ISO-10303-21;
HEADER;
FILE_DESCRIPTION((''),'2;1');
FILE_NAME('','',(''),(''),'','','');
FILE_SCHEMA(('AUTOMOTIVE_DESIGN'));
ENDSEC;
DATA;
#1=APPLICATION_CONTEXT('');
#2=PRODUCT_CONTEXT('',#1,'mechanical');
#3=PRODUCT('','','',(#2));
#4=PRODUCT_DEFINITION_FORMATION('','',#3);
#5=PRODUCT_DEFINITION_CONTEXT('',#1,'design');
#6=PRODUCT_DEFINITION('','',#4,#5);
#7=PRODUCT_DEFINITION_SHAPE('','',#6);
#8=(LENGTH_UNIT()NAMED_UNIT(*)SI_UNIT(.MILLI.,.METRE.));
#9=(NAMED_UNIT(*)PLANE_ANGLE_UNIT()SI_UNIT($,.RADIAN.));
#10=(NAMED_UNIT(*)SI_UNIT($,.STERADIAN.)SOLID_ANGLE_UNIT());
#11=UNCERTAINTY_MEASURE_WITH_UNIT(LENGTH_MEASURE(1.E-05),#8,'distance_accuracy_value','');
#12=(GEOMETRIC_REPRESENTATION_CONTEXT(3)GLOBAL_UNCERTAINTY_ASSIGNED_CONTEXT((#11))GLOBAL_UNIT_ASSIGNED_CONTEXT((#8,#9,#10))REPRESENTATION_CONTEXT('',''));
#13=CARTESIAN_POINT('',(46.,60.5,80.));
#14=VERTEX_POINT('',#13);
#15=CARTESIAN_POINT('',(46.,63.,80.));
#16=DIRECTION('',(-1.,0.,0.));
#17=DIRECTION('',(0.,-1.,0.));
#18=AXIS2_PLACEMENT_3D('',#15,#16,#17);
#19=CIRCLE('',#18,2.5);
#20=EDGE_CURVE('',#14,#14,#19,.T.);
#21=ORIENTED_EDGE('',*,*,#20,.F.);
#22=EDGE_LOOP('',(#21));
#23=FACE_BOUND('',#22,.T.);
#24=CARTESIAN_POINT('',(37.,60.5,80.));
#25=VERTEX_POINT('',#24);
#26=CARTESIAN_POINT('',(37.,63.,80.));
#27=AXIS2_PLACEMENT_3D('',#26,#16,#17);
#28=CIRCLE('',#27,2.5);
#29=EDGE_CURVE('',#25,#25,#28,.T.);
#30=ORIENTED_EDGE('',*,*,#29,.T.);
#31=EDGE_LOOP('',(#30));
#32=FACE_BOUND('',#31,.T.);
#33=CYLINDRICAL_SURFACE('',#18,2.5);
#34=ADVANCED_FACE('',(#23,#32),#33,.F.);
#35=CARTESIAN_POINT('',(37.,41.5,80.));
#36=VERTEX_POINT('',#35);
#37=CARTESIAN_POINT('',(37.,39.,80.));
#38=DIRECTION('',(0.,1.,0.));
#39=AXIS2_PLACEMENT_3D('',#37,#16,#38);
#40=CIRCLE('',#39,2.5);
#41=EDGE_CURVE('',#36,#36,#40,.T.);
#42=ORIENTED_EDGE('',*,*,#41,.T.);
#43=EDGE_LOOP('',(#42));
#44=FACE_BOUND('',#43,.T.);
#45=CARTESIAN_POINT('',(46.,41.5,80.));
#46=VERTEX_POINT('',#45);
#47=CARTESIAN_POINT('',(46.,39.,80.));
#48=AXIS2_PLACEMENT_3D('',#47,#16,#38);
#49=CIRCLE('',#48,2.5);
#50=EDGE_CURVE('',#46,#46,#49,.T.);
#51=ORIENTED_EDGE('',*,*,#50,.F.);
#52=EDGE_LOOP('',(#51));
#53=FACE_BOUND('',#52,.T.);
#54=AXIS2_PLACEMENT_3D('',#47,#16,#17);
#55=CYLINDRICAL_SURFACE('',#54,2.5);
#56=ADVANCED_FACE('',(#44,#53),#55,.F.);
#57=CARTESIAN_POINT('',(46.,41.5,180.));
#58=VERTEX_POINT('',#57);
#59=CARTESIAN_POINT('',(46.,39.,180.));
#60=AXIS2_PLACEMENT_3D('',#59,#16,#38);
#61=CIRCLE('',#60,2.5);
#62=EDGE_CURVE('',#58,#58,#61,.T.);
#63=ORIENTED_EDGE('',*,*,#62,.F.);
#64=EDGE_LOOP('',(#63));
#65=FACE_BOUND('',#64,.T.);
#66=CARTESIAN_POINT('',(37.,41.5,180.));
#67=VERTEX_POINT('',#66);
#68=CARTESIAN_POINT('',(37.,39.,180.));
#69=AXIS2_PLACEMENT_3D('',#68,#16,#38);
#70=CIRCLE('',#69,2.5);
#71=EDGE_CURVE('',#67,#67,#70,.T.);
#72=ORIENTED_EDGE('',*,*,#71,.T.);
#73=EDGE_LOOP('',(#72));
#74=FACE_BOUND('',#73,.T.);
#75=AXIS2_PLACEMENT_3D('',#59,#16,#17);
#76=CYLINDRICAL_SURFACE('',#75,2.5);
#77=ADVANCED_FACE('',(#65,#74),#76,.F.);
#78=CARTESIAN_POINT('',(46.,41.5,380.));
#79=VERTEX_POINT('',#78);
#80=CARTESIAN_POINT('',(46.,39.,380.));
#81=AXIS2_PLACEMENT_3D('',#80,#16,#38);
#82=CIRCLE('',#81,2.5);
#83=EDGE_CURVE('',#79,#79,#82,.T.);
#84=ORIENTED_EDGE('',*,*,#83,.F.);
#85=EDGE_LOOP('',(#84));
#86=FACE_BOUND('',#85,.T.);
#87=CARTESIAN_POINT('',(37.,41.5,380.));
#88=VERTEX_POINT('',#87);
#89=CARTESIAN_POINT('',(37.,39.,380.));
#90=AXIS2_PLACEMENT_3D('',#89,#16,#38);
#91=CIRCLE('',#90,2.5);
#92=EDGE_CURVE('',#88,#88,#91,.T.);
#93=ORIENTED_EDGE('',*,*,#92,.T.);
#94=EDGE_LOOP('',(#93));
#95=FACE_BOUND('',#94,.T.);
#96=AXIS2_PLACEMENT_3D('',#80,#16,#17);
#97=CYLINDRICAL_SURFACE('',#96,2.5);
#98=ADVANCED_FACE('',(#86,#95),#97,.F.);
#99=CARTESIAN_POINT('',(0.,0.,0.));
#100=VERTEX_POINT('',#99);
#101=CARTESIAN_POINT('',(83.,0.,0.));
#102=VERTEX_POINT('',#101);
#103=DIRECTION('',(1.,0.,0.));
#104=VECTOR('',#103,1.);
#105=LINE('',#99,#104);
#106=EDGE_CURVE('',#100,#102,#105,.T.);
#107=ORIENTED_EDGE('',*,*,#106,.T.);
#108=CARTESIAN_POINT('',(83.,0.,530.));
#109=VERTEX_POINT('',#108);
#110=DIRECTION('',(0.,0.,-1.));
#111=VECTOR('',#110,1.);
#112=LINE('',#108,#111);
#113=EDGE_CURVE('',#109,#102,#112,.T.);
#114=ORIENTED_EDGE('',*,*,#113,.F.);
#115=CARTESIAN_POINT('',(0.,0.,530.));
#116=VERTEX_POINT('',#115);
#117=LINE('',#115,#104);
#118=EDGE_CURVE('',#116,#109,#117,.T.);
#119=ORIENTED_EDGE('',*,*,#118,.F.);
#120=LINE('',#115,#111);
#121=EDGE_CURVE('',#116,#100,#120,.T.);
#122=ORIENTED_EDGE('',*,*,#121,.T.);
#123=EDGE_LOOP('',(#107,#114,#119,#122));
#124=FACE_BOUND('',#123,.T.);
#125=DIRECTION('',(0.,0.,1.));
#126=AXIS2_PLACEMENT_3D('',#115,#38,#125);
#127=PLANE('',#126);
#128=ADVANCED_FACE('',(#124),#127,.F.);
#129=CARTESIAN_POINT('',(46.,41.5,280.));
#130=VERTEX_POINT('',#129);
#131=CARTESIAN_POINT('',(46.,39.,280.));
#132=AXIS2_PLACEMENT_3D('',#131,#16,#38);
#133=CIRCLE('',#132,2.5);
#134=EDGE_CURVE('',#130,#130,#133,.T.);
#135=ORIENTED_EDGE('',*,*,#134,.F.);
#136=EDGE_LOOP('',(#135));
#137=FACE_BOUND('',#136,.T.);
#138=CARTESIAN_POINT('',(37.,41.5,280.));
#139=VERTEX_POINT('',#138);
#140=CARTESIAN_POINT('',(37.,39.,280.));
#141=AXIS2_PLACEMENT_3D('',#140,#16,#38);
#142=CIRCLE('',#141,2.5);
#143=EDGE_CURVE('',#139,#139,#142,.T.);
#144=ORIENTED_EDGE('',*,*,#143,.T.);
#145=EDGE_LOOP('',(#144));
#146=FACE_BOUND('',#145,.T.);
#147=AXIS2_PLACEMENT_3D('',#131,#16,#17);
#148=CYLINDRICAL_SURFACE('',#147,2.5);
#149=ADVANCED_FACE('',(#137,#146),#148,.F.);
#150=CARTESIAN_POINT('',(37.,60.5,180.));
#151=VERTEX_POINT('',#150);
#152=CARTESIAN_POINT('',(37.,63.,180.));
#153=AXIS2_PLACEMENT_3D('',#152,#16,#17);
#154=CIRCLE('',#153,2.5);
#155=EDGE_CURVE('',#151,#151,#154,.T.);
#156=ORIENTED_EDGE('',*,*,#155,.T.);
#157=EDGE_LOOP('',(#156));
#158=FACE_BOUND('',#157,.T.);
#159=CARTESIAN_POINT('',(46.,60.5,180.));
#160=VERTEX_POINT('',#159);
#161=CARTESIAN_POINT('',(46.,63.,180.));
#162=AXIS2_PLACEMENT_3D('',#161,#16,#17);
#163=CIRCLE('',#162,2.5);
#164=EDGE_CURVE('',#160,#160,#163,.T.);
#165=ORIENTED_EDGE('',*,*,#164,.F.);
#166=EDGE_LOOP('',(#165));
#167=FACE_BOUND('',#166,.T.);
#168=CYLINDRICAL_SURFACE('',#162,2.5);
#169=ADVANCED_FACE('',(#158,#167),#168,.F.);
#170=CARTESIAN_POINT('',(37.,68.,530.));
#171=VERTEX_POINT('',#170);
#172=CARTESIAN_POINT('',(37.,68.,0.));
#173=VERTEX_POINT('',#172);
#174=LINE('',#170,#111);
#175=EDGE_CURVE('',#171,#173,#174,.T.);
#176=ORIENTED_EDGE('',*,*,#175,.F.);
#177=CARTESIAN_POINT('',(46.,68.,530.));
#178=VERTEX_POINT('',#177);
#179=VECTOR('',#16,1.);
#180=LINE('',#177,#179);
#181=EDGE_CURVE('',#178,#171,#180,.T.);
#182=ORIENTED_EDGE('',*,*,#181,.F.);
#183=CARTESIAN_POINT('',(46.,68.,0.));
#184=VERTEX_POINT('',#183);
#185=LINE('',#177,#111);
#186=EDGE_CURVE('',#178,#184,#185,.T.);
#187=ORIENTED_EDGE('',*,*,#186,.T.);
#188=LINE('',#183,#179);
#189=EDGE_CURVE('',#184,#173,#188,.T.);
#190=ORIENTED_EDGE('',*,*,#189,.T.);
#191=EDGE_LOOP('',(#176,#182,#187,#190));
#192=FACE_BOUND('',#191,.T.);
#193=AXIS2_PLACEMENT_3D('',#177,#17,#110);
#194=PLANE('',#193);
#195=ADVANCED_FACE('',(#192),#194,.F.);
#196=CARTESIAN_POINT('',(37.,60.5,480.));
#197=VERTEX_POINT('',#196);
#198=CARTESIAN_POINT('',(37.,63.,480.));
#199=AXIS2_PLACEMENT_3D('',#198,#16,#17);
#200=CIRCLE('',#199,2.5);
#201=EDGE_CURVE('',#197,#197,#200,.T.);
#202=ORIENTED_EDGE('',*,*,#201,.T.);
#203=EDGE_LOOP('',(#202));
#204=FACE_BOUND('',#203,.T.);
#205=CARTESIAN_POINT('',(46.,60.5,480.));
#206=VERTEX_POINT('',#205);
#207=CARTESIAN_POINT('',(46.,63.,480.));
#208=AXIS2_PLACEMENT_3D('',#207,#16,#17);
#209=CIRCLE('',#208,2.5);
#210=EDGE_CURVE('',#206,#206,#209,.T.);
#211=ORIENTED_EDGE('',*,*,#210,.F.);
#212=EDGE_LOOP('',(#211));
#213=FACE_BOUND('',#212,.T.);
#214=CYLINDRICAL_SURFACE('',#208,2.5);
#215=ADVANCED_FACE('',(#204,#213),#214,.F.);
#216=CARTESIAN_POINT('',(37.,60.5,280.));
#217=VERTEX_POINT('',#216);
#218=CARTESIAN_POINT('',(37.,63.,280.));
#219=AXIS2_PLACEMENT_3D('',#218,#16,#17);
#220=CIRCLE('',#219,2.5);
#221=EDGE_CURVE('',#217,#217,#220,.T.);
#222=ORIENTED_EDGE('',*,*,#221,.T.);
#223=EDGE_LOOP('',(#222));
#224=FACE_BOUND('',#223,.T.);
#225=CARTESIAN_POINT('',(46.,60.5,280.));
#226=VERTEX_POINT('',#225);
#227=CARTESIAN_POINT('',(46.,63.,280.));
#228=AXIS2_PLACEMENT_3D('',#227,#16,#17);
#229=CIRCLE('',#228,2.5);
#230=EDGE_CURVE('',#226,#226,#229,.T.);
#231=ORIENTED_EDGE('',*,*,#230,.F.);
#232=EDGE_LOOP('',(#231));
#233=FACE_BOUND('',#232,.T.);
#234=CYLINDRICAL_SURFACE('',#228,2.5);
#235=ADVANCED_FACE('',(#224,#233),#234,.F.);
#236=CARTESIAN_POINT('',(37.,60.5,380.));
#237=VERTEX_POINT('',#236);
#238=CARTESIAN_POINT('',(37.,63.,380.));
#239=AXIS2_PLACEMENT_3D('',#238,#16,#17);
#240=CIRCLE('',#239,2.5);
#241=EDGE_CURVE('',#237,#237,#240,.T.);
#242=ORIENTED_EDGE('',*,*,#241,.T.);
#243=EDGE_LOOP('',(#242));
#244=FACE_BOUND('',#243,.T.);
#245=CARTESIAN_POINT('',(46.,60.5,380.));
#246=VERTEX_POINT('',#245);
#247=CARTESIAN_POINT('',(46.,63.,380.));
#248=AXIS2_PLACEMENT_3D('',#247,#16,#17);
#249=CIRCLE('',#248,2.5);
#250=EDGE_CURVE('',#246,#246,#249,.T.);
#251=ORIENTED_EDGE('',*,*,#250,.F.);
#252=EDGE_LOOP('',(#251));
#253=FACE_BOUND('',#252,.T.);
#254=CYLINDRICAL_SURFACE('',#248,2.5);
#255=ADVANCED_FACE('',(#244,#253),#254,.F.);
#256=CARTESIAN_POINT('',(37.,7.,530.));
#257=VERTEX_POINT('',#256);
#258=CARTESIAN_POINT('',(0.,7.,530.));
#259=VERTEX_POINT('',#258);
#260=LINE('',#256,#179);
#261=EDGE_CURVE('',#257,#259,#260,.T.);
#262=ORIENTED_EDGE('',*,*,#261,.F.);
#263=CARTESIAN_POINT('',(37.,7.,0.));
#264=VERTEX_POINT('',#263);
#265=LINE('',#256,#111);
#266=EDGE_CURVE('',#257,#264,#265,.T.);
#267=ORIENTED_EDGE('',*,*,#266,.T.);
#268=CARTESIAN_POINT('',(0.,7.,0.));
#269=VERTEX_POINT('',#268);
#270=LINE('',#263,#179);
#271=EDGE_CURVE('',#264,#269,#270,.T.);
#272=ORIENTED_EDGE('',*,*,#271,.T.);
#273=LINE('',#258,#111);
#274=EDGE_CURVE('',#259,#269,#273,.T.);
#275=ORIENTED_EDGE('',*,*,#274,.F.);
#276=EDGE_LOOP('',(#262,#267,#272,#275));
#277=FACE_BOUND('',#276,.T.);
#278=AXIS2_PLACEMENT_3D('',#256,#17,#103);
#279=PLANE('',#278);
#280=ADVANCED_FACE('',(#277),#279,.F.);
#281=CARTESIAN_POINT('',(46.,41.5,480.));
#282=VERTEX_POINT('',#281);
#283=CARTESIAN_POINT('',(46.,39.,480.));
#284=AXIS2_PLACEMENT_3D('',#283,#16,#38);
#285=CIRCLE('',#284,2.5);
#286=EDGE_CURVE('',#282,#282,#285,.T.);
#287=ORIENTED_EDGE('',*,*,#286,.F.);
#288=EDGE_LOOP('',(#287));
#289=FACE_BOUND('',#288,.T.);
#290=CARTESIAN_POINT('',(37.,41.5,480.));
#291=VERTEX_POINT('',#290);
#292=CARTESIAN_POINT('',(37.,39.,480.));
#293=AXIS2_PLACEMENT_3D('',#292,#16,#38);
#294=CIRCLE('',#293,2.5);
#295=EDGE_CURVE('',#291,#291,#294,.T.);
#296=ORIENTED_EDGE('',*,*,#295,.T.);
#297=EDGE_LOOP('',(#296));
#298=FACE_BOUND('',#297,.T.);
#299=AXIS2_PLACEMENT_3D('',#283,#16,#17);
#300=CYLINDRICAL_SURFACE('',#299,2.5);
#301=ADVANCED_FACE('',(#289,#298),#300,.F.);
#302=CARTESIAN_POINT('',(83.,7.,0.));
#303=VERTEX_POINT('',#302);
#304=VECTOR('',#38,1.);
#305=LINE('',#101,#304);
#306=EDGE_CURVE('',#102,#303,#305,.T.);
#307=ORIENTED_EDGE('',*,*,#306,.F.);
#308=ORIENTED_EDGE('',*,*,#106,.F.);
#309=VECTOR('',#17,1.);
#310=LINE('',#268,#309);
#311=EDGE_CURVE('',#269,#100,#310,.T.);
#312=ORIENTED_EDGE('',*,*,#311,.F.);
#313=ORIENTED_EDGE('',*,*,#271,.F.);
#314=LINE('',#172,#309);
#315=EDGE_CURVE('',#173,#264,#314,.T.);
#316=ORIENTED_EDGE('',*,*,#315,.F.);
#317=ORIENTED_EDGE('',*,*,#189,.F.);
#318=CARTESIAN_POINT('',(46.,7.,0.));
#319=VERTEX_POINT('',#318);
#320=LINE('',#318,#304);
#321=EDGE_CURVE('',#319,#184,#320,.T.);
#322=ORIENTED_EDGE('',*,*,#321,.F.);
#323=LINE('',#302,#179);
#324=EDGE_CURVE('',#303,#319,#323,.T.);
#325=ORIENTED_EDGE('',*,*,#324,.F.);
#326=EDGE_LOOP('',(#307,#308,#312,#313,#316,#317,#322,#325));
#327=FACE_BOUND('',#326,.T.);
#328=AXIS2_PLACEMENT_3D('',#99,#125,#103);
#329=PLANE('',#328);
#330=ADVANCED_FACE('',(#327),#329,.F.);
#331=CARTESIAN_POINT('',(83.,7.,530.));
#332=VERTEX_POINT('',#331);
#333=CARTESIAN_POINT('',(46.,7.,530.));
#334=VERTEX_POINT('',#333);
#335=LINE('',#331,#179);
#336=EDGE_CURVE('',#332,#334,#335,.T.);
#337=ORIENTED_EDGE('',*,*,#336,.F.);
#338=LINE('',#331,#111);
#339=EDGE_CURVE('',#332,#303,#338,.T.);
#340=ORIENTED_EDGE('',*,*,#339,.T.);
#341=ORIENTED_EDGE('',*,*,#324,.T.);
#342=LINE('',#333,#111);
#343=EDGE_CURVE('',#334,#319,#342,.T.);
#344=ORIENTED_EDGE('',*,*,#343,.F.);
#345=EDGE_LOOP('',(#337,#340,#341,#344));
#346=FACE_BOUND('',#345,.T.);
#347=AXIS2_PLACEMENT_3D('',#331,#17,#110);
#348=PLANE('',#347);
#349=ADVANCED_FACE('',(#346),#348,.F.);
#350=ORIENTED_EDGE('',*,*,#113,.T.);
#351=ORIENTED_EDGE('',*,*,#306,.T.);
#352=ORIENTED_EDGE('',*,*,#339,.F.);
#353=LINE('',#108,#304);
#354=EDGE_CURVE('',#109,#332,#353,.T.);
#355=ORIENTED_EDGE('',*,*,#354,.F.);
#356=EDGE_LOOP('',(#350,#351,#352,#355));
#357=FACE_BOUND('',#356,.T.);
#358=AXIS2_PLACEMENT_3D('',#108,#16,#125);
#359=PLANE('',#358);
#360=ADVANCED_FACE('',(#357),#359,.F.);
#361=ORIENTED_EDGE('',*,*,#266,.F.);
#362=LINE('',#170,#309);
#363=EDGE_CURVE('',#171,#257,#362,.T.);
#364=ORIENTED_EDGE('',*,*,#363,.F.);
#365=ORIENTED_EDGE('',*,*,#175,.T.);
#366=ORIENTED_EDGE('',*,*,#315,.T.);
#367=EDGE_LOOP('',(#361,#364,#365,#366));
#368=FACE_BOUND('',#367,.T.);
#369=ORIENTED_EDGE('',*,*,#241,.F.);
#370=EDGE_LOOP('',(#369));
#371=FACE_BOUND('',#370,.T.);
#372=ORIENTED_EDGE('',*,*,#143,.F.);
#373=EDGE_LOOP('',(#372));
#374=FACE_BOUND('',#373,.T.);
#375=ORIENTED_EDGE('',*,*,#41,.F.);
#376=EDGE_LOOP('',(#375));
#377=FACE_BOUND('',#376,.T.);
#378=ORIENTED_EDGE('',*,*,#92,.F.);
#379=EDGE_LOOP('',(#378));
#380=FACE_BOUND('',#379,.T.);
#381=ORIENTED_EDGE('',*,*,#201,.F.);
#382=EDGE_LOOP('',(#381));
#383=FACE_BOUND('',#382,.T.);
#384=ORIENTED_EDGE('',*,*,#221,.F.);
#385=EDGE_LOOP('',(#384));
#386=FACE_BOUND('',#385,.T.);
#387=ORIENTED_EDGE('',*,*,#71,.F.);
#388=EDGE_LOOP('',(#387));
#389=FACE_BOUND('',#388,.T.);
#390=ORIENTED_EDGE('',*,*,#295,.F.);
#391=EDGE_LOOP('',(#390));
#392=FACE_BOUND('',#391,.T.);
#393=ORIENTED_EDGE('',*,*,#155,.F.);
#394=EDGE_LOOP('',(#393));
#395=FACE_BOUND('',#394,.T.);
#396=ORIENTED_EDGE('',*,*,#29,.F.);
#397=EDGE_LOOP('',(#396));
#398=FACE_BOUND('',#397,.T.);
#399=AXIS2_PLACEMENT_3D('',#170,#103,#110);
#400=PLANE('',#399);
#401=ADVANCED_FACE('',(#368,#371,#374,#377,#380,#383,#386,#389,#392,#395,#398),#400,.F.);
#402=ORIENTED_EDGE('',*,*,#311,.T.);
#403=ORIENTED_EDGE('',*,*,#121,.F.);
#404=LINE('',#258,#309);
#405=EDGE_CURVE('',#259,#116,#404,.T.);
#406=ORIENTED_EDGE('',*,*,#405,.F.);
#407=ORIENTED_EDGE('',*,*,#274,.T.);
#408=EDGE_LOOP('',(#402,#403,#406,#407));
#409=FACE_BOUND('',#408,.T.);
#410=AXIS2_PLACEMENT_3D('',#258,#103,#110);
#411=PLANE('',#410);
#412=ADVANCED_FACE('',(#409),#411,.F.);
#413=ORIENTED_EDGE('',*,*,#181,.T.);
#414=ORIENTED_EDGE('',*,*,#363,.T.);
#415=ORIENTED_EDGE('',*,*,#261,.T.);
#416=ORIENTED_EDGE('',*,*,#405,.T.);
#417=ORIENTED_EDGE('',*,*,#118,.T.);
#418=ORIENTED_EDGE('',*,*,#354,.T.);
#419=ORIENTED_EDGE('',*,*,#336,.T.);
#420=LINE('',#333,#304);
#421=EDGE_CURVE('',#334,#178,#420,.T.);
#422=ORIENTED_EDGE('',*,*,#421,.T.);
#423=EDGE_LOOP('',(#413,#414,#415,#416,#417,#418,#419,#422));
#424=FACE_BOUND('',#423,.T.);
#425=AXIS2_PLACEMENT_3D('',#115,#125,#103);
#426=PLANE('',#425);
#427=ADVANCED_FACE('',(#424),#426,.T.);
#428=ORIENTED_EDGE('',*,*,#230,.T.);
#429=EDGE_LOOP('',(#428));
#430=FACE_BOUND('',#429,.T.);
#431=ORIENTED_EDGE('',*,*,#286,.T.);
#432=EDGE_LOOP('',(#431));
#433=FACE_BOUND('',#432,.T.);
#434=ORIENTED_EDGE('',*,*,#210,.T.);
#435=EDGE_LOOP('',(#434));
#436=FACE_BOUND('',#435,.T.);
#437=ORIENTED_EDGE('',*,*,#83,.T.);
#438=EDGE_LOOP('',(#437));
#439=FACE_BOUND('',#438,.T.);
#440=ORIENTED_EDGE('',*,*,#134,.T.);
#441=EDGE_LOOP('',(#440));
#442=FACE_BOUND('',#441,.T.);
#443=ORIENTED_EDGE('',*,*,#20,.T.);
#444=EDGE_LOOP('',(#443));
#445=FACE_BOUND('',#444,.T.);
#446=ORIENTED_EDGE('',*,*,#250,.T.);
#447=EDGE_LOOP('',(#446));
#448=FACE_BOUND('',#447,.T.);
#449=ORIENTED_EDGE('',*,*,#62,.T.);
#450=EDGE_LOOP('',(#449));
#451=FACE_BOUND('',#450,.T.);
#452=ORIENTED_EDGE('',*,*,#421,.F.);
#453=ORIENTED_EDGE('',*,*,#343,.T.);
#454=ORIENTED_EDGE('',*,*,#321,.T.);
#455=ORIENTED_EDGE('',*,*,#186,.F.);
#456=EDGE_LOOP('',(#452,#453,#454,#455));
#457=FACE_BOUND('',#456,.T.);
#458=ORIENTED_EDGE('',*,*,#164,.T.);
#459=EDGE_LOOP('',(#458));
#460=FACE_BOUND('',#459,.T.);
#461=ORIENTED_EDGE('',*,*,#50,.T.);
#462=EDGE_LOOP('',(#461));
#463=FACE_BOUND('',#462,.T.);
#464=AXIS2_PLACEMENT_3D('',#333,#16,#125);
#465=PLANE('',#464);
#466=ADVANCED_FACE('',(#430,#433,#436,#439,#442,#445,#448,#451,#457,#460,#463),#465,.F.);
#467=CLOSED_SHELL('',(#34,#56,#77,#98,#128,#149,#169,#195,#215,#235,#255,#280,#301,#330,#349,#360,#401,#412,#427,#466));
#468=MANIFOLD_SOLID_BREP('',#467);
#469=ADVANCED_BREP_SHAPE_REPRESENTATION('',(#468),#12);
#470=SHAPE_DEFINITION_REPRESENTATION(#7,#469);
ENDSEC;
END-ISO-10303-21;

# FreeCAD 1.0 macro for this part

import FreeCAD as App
import Part
import Sketcher
Q = App.Units.Quantity

doc = App.newDocument("Part")
body = doc.addObject("PartDesign::Body", "Body")

sketch1 = body.newObject("Sketcher::SketchObject", "Sketch")
sketch1.AttachmentSupport = (doc.getObject("XY_Plane"), [""])
sketch1.MapMode = "FlatFace"
sketch1.addGeometry([
    Part.LineSegment(App.Vector(0, 0, 0), App.Vector(83, 0, 0)),
    Part.LineSegment(App.Vector(83, 0, 0), App.Vector(83, 7, 0)),
    Part.LineSegment(App.Vector(83, 7, 0), App.Vector(46, 7, 0)),
    Part.LineSegment(App.Vector(46, 7, 0), App.Vector(46, 68, 0)),
    Part.LineSegment(App.Vector(46, 68, 0), App.Vector(37, 68, 0)),
    Part.LineSegment(App.Vector(37, 68, 0), App.Vector(37, 7, 0)),
    Part.LineSegment(App.Vector(37, 7, 0), App.Vector(0, 7, 0)),
    Part.LineSegment(App.Vector(0, 7, 0), App.Vector(0, 0, 0)),
], False)
sketch1.addConstraint([
    Sketcher.Constraint("Coincident", 0, 2, 1, 1),
    Sketcher.Constraint("Coincident", 1, 2, 2, 1),
    Sketcher.Constraint("Coincident", 2, 2, 3, 1),
    Sketcher.Constraint("Coincident", 3, 2, 4, 1),
    Sketcher.Constraint("Coincident", 4, 2, 5, 1),
    Sketcher.Constraint("Coincident", 5, 2, 6, 1),
    Sketcher.Constraint("Coincident", 6, 2, 7, 1),
    Sketcher.Constraint("Coincident", 7, 2, 0, 1),
    Sketcher.Constraint("Horizontal", 0),
    Sketcher.Constraint("Vertical", 1),
    Sketcher.Constraint("Horizontal", 2),
    Sketcher.Constraint("Vertical", 3),
    Sketcher.Constraint("Horizontal", 4),
    Sketcher.Constraint("Vertical", 5),
    Sketcher.Constraint("Horizontal", 6),
    Sketcher.Constraint("Vertical", 7),
    Sketcher.Constraint("Coincident", 7, 2, -1, 1),
    Sketcher.Constraint("Horizontal", 2, 2, 5, 2),
    Sketcher.Constraint("Equal", 2, 6),
    Sketcher.Constraint("DistanceX", 0, 1, 0, 2, Q("83 mm")),
    Sketcher.Constraint("DistanceX", 2, 2, 2, 1, Q("37 mm")),
    Sketcher.Constraint("DistanceY", 1, 1, 1, 2, Q("7 mm")),
    Sketcher.Constraint("DistanceY", 3, 1, 3, 2, Q("61 mm")),
])
pad1 = body.newObject("PartDesign::Pad", "Pad")
pad1.Profile = sketch1
pad1.Length = 530

sketch2 = body.newObject("Sketcher::SketchObject", "Sketch001")
sketch2.AttachmentSupport = (doc.getObject("YZ_Plane"), [""])
sketch2.MapMode = "FlatFace"
sketch2.AttachmentOffset = App.Placement(App.Vector(0, 0, 37), App.Rotation())
sketch2.addGeometry([
    Part.Circle(App.Vector(63, 80, 0), App.Vector(0, 0, 1), 2.5),
    Part.Circle(App.Vector(39, 80, 0), App.Vector(0, 0, 1), 2.5),
    Part.Circle(App.Vector(63, 180, 0), App.Vector(0, 0, 1), 2.5),
    Part.Circle(App.Vector(39, 180, 0), App.Vector(0, 0, 1), 2.5),
    Part.Circle(App.Vector(63, 280, 0), App.Vector(0, 0, 1), 2.5),
    Part.Circle(App.Vector(39, 280, 0), App.Vector(0, 0, 1), 2.5),
    Part.Circle(App.Vector(63, 380, 0), App.Vector(0, 0, 1), 2.5),
    Part.Circle(App.Vector(39, 380, 0), App.Vector(0, 0, 1), 2.5),
    Part.Circle(App.Vector(63, 480, 0), App.Vector(0, 0, 1), 2.5),
    Part.Circle(App.Vector(39, 480, 0), App.Vector(0, 0, 1), 2.5),
], False)
sketch2.addConstraint([
    Sketcher.Constraint("Equal", 0, 1),
    Sketcher.Constraint("Equal", 1, 2),
    Sketcher.Constraint("Equal", 2, 3),
    Sketcher.Constraint("Equal", 3, 4),
    Sketcher.Constraint("Equal", 4, 5),
    Sketcher.Constraint("Equal", 5, 6),
    Sketcher.Constraint("Equal", 6, 7),
    Sketcher.Constraint("Equal", 7, 8),
    Sketcher.Constraint("Equal", 8, 9),
    Sketcher.Constraint("Horizontal", 0, 3, 1, 3),
    Sketcher.Constraint("Horizontal", 2, 3, 3, 3),
    Sketcher.Constraint("Horizontal", 4, 3, 5, 3),
    Sketcher.Constraint("Horizontal", 6, 3, 7, 3),
    Sketcher.Constraint("Horizontal", 8, 3, 9, 3),
    Sketcher.Constraint("Vertical", 0, 3, 2, 3),
    Sketcher.Constraint("Vertical", 1, 3, 3, 3),
    Sketcher.Constraint("Vertical", 2, 3, 4, 3),
    Sketcher.Constraint("Vertical", 3, 3, 5, 3),
    Sketcher.Constraint("Vertical", 4, 3, 6, 3),
    Sketcher.Constraint("Vertical", 5, 3, 7, 3),
    Sketcher.Constraint("Vertical", 6, 3, 8, 3),
    Sketcher.Constraint("Vertical", 7, 3, 9, 3),
    Sketcher.Constraint("Diameter", 0, Q("5 mm")),
    Sketcher.Constraint("DistanceX", -1, 1, 0, 3, Q("63 mm")),
    Sketcher.Constraint("DistanceY", -1, 1, 0, 3, Q("80 mm")),
    Sketcher.Constraint("DistanceX", -1, 1, 1, 3, Q("39 mm")),
    Sketcher.Constraint("DistanceY", -1, 1, 2, 3, Q("180 mm")),
    Sketcher.Constraint("DistanceY", -1, 1, 4, 3, Q("280 mm")),
    Sketcher.Constraint("DistanceY", -1, 1, 6, 3, Q("380 mm")),
    Sketcher.Constraint("DistanceY", -1, 1, 8, 3, Q("480 mm")),
])
pocket1 = body.newObject("PartDesign::Pocket", "Pocket")
pocket1.Profile = sketch2
pocket1.Length = 9
pocket1.Reversed = True

doc.recompute()
